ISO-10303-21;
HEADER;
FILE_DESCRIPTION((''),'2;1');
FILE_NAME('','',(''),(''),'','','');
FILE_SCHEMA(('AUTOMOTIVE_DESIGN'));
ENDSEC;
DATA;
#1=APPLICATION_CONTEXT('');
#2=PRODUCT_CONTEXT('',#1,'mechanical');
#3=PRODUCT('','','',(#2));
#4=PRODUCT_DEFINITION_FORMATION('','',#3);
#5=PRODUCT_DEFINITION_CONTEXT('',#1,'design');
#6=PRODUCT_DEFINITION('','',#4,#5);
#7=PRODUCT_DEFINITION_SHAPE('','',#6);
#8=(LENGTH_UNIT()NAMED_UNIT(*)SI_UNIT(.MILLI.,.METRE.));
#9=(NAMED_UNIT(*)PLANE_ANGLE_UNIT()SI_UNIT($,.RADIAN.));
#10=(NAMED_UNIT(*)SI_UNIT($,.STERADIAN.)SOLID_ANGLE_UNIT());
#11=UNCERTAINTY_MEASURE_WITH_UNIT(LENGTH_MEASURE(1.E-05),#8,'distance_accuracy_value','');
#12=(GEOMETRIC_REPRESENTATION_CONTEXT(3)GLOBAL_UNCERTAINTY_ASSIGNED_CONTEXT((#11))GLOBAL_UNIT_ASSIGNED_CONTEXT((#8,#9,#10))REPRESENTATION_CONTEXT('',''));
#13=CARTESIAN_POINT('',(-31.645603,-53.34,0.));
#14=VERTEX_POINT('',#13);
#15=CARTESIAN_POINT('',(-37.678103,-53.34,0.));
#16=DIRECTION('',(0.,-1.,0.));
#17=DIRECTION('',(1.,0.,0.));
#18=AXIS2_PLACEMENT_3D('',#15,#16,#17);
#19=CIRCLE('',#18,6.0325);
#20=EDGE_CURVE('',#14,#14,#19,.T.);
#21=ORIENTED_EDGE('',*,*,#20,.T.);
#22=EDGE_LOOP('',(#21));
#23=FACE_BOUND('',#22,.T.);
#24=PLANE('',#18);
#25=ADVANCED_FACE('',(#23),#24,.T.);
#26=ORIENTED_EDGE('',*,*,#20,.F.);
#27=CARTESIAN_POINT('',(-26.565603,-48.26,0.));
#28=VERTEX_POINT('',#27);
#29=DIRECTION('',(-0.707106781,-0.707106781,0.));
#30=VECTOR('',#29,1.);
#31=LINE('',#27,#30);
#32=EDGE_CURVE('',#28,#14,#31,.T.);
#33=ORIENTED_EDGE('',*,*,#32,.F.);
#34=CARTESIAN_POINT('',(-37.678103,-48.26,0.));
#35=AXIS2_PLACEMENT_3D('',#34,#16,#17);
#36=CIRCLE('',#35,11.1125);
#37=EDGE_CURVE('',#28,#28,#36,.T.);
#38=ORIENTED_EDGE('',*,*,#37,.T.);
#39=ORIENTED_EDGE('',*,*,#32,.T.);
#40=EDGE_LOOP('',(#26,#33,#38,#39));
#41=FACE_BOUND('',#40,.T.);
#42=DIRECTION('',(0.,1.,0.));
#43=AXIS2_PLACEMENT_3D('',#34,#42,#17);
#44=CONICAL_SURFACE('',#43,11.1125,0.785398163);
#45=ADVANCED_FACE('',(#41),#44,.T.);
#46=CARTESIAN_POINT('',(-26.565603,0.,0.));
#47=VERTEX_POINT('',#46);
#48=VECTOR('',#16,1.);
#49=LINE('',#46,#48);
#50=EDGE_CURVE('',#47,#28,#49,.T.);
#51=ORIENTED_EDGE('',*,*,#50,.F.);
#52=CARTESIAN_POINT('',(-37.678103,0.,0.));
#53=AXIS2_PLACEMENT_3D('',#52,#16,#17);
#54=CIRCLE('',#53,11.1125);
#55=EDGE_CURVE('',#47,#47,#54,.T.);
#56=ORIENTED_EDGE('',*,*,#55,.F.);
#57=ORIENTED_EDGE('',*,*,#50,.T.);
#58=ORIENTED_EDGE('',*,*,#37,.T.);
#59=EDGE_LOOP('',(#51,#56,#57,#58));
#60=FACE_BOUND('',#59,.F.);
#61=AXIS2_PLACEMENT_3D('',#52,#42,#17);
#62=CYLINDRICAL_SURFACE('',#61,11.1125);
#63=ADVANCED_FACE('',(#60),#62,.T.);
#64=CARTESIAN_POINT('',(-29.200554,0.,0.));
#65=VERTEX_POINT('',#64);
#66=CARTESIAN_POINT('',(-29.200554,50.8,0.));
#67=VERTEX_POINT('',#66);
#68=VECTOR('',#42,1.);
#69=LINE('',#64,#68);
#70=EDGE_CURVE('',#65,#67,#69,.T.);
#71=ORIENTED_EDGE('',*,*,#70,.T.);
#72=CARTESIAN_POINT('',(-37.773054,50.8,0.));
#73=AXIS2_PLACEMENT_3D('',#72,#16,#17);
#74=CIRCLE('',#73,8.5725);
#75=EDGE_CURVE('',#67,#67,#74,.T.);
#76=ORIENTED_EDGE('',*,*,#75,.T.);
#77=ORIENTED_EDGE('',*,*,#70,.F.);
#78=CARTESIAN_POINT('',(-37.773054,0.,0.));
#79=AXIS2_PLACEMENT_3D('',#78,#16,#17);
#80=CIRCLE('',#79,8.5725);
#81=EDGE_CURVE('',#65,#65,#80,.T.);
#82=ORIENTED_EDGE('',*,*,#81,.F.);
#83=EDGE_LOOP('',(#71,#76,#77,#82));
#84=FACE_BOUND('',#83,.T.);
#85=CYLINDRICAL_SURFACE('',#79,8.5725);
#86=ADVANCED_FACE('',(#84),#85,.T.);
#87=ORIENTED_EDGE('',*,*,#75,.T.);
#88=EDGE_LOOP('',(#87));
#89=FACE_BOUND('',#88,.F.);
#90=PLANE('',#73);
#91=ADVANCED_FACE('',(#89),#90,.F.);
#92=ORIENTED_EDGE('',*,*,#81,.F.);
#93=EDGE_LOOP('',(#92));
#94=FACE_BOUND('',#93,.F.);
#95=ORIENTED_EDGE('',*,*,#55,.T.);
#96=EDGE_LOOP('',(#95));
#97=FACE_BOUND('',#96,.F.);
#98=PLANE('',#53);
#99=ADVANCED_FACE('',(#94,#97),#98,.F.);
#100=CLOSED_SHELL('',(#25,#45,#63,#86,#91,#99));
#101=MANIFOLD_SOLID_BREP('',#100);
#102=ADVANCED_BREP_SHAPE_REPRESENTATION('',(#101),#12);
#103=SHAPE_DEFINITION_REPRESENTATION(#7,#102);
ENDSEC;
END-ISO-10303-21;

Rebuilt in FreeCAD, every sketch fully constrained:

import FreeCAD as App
import Part
import Sketcher
from FreeCAD import Vector
Q = App.Units.Quantity


def edges_at(feature, points):
    """Names of the edges that pass closest to the given points."""
    edges = feature.Shape.Edges
    near = lambda p: min(range(len(edges)), key=lambda i: edges[i].distToShape(Part.Vertex(*p))[0])
    return sorted({f"Edge{near(p) + 1}" for p in points})

doc = App.newDocument("Part")
body = doc.addObject("PartDesign::Body", "Body")

# Sketch on XZ plane
sketch1 = body.newObject("Sketcher::SketchObject", "Sketch")
sketch1.AttachmentSupport = (doc.getObject("XZ_Plane"), [""])
sketch1.MapMode = "FlatFace"
sketch1.addGeometry(Part.Circle(Vector(-38, 0, 0), Vector(0, 0, 1), 11), False)
sketch1.addConstraint(Sketcher.Constraint("PointOnObject", 0, 3, -1))
sketch1.addConstraint(Sketcher.Constraint("Diameter", 0, Q("0.875 in")))
sketch1.addConstraint(Sketcher.Constraint("DistanceX", 0, 3, -1, 1, Q("37.678103 mm")))
pad1 = body.newObject("PartDesign::Pad", "Pad")
pad1.Profile = sketch1
pad1.Length = Q("2.1 in")
doc.recompute()

chamfer = body.newObject("PartDesign::Chamfer", "Chamfer")
chamfer.Base = (pad1, edges_at(pad1, [(-48.791, -53.34, 0)]))
chamfer.Size = Q("0.2 in")

# Sketch on XZ plane
sketch2 = body.newObject("Sketcher::SketchObject", "Sketch001")
sketch2.AttachmentSupport = (doc.getObject("XZ_Plane"), [""])
sketch2.MapMode = "FlatFace"
sketch2.addGeometry(Part.Circle(Vector(-38, 0, 0), Vector(0, 0, 1), 9), False)
sketch2.addConstraint(Sketcher.Constraint("PointOnObject", 0, 3, -1))
sketch2.addConstraint(Sketcher.Constraint("Diameter", 0, Q("0.675 in")))
sketch2.addConstraint(Sketcher.Constraint("DistanceX", 0, 3, -1, 1, Q("37.773054 mm")))
pad2 = body.newObject("PartDesign::Pad", "Pad001")
pad2.Profile = sketch2
pad2.Length = Q("2 in")
pad2.Reversed = True

doc.recompute()
